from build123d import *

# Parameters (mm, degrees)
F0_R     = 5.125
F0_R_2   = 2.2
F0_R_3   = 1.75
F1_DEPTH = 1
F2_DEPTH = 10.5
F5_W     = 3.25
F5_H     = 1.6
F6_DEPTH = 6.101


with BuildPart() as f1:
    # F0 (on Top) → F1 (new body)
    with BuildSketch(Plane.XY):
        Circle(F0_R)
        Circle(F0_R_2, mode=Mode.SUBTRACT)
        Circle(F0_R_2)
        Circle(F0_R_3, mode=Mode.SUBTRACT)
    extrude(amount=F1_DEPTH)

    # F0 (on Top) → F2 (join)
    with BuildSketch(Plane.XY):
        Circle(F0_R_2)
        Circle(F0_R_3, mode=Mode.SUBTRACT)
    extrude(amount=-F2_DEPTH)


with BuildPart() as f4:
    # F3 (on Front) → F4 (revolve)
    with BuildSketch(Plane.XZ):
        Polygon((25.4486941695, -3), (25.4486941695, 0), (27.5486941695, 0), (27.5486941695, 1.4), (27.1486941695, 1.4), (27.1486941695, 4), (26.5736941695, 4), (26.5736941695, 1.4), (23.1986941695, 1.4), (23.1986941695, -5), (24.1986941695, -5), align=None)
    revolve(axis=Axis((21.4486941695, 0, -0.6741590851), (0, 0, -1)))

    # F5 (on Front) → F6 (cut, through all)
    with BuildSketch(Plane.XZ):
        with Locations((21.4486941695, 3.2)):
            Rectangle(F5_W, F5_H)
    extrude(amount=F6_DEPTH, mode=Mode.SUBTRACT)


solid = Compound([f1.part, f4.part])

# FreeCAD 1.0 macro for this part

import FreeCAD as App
import Part
import Sketcher
from FreeCAD import Vector
Q = App.Units.Quantity


def add_polygon(sketch, points):
    """Adds a closed chain of lines whose ends are joined by coincident constraints."""
    first, n = sketch.GeometryCount, len(points)
    for a, b in zip(points, points[1:] + points[:1]):
        sketch.addGeometry(Part.LineSegment(App.Vector(*a, 0), App.Vector(*b, 0)), False)
    for i in range(n):
        sketch.addConstraint(Sketcher.Constraint("Coincident", first + i, 2, first + (i + 1) % n, 1))

doc = App.newDocument("Part")
body = doc.addObject("PartDesign::Body", "Body")

# Sketch on XY plane
sketch1 = doc.addObject("Sketcher::SketchObject", "Sketch")
body.addObject(sketch1)
sketch1.AttachmentSupport = (doc.XY_Plane, [""])
sketch1.MapMode = "FlatFace"
sketch1.addGeometry([
    Part.Circle(Vector(0, 0, 0), Vector(0, 0, 1), 5.125),
    Part.Circle(Vector(0, 0, 0), Vector(0, 0, 1), 1.75),
], False)
sketch1.addConstraint([
    Sketcher.Constraint("Coincident", 0, 3, -1, 1),
    Sketcher.Constraint("Coincident", 1, 3, -1, 1),
    Sketcher.Constraint("Diameter", 1, Q("3.5 mm")),
    Sketcher.Constraint("Diameter", 0, Q("10.25 mm")),
])
pad1 = doc.addObject("PartDesign::Pad", "Pad")
body.addObject(pad1)
pad1.Profile = sketch1
pad1.Length = 1

# Sketch on XY plane
sketch2 = doc.addObject("Sketcher::SketchObject", "Sketch001")
body.addObject(sketch2)
sketch2.AttachmentSupport = (doc.XY_Plane, [""])
sketch2.MapMode = "FlatFace"
sketch2.addGeometry([
    Part.Circle(Vector(0, 0, 0), Vector(0, 0, 1), 2.2),
    Part.Circle(Vector(0, 0, 0), Vector(0, 0, 1), 1.75),
], False)
sketch2.addConstraint([
    Sketcher.Constraint("Coincident", 0, 3, -1, 1),
    Sketcher.Constraint("Coincident", 1, 3, -1, 1),
    Sketcher.Constraint("Diameter", 0, Q("4.4 mm")),
    Sketcher.Constraint("Diameter", 1, Q("3.5 mm")),
])
pad2 = doc.addObject("PartDesign::Pad", "Pad001")
body.addObject(pad2)
pad2.Profile = sketch2
pad2.Length = 10.5
pad2.Reversed = True
body2 = doc.addObject("PartDesign::Body", "Body001")

# Sketch on XZ plane
sketch3 = doc.addObject("Sketcher::SketchObject", "Sketch002")
body2.addObject(sketch3)
sketch3.AttachmentSupport = (doc.getObject("XZ_Plane001"), [""])
sketch3.MapMode = "FlatFace"
add_polygon(sketch3, [(25.448694, -3), (25.448694, 0), (27.548694, 0), (27.548694, 1.4), (27.148694, 1.4), (27.148694, 4), (26.573694, 4), (26.573694, 1.4), (23.198694, 1.4), (23.198694, -5), (24.198694, -5)])  # lines 0-10
sketch3.addGeometry(Part.LineSegment(Vector(21.448694, 4, 0), Vector(21.448694, -5, 0)), True)  # axis
sketch3.addConstraint([
    Sketcher.Constraint("Vertical", 0),
    Sketcher.Constraint("Horizontal", 1),
    Sketcher.Constraint("Vertical", 2),
    Sketcher.Constraint("Horizontal", 3),
    Sketcher.Constraint("Vertical", 4),
    Sketcher.Constraint("Horizontal", 5),
    Sketcher.Constraint("Vertical", 6),
    Sketcher.Constraint("Horizontal", 7),
    Sketcher.Constraint("Vertical", 8),
    Sketcher.Constraint("Horizontal", 9),
    Sketcher.Constraint("Vertical", 11),
    Sketcher.Constraint("PointOnObject", 0, 2, -1),
    Sketcher.Constraint("Horizontal", 3, 2, 6, 2),
    Sketcher.Constraint("Horizontal", 5, 2, 11, 1),
    Sketcher.Constraint("Horizontal", 9, 2, 11, 2),
    Sketcher.Constraint("DistanceX", 9, 1, 9, 2, Q("1 mm")),
    Sketcher.Constraint("DistanceY", 0, 1, 0, 2, Q("3 mm")),
    Sketcher.Constraint("DistanceY", 11, 2, 11, 1, Q("9 mm")),
    Sketcher.Constraint("DistanceX", 1, 1, 1, 2, Q("2.1 mm")),
    Sketcher.Constraint("DistanceX", 3, 2, 3, 1, Q("0.4 mm")),
    Sketcher.Constraint("DistanceY", 2, 1, 2, 2, Q("1.4 mm")),
    Sketcher.Constraint("DistanceY", 4, 1, 4, 2, Q("2.6 mm")),
    Sketcher.Constraint("DistanceX", 11, 1, 0, 2, Q("4 mm")),
    Sketcher.Constraint("DistanceX", 5, 2, 5, 1, Q("0.575 mm")),
    Sketcher.Constraint("DistanceX", 7, 2, 7, 1, Q("3.375 mm")),
    Sketcher.Constraint("DistanceX", -1, 1, 0, 2, Q("25.448694 mm")),
])
revolution = doc.addObject("PartDesign::Revolution", "Revolution")
body2.addObject(revolution)
revolution.Profile = sketch3
revolution.ReferenceAxis = (sketch3, ["Axis0"])
revolution.Angle = 360

# Sketch on XZ plane
sketch4 = doc.addObject("Sketcher::SketchObject", "Sketch003")
body2.addObject(sketch4)
sketch4.AttachmentSupport = (doc.getObject("XZ_Plane001"), [""])
sketch4.MapMode = "FlatFace"
add_polygon(sketch4, [(19.823694, 4), (19.823694, 2.4), (23.073694, 2.4), (23.073694, 4)])  # lines 0-3
sketch4.addConstraint([
    Sketcher.Constraint("Vertical", 0),
    Sketcher.Constraint("Horizontal", 1),
    Sketcher.Constraint("Vertical", 2),
    Sketcher.Constraint("Horizontal", 3),
    Sketcher.Constraint("DistanceY", 0, 2, 0, 1, Q("1.6 mm")),
    Sketcher.Constraint("DistanceY", -1, 1, 2, 2, Q("4 mm")),
    Sketcher.Constraint("DistanceX", 1, 1, 1, 2, Q("3.25 mm")),
    Sketcher.Constraint("DistanceX", -1, 1, 0, 2, Q("19.823694 mm")),
])
pocket1 = doc.addObject("PartDesign::Pocket", "Pocket")
body2.addObject(pocket1)
pocket1.Profile = sketch4
pocket1.Type = "ThroughAll"
pocket1.Reversed = True

doc.recompute()
